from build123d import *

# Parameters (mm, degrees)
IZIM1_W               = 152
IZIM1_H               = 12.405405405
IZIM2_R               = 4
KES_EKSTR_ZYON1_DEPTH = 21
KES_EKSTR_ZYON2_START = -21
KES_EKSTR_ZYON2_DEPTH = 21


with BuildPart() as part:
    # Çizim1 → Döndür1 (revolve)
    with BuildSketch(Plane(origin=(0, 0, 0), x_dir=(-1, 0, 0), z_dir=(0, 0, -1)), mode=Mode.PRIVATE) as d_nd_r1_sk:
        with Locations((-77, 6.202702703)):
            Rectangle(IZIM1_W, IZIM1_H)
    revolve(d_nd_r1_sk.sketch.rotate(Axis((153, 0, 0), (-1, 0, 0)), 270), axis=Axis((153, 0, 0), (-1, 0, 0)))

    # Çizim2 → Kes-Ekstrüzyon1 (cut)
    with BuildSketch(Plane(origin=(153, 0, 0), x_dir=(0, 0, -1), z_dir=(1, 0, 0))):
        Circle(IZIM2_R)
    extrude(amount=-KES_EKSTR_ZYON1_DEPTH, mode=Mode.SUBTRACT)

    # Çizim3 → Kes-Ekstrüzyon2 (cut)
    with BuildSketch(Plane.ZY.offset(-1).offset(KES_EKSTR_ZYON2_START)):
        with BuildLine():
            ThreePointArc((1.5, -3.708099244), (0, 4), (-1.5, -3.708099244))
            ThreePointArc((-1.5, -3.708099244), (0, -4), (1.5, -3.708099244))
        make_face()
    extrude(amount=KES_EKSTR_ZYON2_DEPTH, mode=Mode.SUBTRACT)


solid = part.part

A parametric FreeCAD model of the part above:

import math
import FreeCAD as App
import Part
import Sketcher

doc = App.newDocument("Part")
params = doc.addObject("Spreadsheet::Sheet", "Params")
for row, (alias, value) in enumerate([
    ("sketch1_width", "152 mm"),
    ("revolution_angle", "360 deg"),
    ("sketch2_diameter", "8 mm"),
    ("pocket1_length", "21 mm"),
    ("sketch3_radius", "4 mm"),
    ("pocket2_length", "21 mm"),
], start=1):
    params.set(f"A{row}", alias)
    params.set(f"B{row}", "=" + value)
    params.setAlias(f"B{row}", alias)

body = doc.addObject("PartDesign::Body", "Body")

sketch1 = body.newObject("Sketcher::SketchObject", "Sketch")
sketch1.AttachmentSupport = (doc.getObject("XY_Plane"), [""])
sketch1.MapMode = "FlatFace"
sketch1.addGeometry([
    Part.LineSegment(App.Vector(153, 12, 0), App.Vector(153, 0, 0)),
    Part.LineSegment(App.Vector(153, 0, 0), App.Vector(1, 0, 0)),
    Part.LineSegment(App.Vector(1, 0, 0), App.Vector(1, 12, 0)),
    Part.LineSegment(App.Vector(1, 12, 0), App.Vector(153, 12, 0)),
], False)
sketch1.addConstraint([
    Sketcher.Constraint("Coincident", 0, 2, 1, 1),
    Sketcher.Constraint("Coincident", 1, 2, 2, 1),
    Sketcher.Constraint("Coincident", 2, 2, 3, 1),
    Sketcher.Constraint("Coincident", 3, 2, 0, 1),
    Sketcher.Constraint("Vertical", 0),
    Sketcher.Constraint("Horizontal", 1),
    Sketcher.Constraint("Vertical", 2),
    Sketcher.Constraint("Horizontal", 3),
    Sketcher.Constraint("PointOnObject", 0, 2, -1),
    Sketcher.Constraint("DistanceX", 1, 2, 1, 1, 152.0),
    Sketcher.Constraint("DistanceX", -1, 1, 0, 2, 153.0),
    Sketcher.Constraint("DistanceY", 0, 2, 0, 1, 12.405405),
])
sketch1.setExpression("Constraints[9]", "Params.sketch1_width")
revolution = body.newObject("PartDesign::Revolution", "Revolution")
revolution.Profile = sketch1
revolution.ReferenceAxis = (sketch1, ["H_Axis"])
revolution.setExpression("Angle", "Params.revolution_angle")

sketch2 = body.newObject("Sketcher::SketchObject", "Sketch001")
sketch2.AttachmentSupport = (doc.getObject("YZ_Plane"), [""])
sketch2.MapMode = "FlatFace"
sketch2.AttachmentOffset = App.Placement(App.Vector(0, 0, 153), App.Rotation())
sketch2.addGeometry(Part.Circle(App.Vector(0, 0, 0), App.Vector(0, 0, 1), 4), False)
sketch2.addConstraint([
    Sketcher.Constraint("Coincident", 0, 3, -1, 1),
    Sketcher.Constraint("Diameter", 0, 8.0),
])
sketch2.setExpression("Constraints[1]", "Params.sketch2_diameter")
pocket1 = body.newObject("PartDesign::Pocket", "Pocket")
pocket1.Profile = sketch2
pocket1.setExpression("Length", "Params.pocket1_length")

sketch3 = body.newObject("Sketcher::SketchObject", "Sketch002")
sketch3.AttachmentSupport = (doc.getObject("YZ_Plane"), [""])
sketch3.MapMode = "FlatFace"
sketch3.AttachmentOffset = App.Placement(App.Vector(0, 0, 22), App.Rotation())
sketch3.addGeometry([
    Part.ArcOfCircle(Part.Circle(App.Vector(0, 0, 0), App.Vector(0, 0, 1), 4), math.radians(-158), math.radians(158)),
    Part.ArcOfCircle(Part.Circle(App.Vector(0, 0, 0), App.Vector(0, 0, 1), 4), math.radians(158), math.radians(202)),
], False)
sketch3.addConstraint([
    Sketcher.Constraint("Tangent", 0, 1, 1, 2),
    Sketcher.Constraint("Coincident", 1, 1, 0, 2),
    Sketcher.Constraint("Coincident", 0, 3, -1, 1),
    Sketcher.Constraint("Vertical", 0, 1, 1, 1),
    Sketcher.Constraint("Radius", 0, 4.0),
    Sketcher.Constraint("DistanceY", 0, 1, 1, 1, 3.0),
])
sketch3.setExpression("Constraints[4]", "Params.sketch3_radius")
pocket2 = body.newObject("PartDesign::Pocket", "Pocket001")
pocket2.Profile = sketch3
pocket2.setExpression("Length", "Params.pocket2_length")

doc.recompute()
